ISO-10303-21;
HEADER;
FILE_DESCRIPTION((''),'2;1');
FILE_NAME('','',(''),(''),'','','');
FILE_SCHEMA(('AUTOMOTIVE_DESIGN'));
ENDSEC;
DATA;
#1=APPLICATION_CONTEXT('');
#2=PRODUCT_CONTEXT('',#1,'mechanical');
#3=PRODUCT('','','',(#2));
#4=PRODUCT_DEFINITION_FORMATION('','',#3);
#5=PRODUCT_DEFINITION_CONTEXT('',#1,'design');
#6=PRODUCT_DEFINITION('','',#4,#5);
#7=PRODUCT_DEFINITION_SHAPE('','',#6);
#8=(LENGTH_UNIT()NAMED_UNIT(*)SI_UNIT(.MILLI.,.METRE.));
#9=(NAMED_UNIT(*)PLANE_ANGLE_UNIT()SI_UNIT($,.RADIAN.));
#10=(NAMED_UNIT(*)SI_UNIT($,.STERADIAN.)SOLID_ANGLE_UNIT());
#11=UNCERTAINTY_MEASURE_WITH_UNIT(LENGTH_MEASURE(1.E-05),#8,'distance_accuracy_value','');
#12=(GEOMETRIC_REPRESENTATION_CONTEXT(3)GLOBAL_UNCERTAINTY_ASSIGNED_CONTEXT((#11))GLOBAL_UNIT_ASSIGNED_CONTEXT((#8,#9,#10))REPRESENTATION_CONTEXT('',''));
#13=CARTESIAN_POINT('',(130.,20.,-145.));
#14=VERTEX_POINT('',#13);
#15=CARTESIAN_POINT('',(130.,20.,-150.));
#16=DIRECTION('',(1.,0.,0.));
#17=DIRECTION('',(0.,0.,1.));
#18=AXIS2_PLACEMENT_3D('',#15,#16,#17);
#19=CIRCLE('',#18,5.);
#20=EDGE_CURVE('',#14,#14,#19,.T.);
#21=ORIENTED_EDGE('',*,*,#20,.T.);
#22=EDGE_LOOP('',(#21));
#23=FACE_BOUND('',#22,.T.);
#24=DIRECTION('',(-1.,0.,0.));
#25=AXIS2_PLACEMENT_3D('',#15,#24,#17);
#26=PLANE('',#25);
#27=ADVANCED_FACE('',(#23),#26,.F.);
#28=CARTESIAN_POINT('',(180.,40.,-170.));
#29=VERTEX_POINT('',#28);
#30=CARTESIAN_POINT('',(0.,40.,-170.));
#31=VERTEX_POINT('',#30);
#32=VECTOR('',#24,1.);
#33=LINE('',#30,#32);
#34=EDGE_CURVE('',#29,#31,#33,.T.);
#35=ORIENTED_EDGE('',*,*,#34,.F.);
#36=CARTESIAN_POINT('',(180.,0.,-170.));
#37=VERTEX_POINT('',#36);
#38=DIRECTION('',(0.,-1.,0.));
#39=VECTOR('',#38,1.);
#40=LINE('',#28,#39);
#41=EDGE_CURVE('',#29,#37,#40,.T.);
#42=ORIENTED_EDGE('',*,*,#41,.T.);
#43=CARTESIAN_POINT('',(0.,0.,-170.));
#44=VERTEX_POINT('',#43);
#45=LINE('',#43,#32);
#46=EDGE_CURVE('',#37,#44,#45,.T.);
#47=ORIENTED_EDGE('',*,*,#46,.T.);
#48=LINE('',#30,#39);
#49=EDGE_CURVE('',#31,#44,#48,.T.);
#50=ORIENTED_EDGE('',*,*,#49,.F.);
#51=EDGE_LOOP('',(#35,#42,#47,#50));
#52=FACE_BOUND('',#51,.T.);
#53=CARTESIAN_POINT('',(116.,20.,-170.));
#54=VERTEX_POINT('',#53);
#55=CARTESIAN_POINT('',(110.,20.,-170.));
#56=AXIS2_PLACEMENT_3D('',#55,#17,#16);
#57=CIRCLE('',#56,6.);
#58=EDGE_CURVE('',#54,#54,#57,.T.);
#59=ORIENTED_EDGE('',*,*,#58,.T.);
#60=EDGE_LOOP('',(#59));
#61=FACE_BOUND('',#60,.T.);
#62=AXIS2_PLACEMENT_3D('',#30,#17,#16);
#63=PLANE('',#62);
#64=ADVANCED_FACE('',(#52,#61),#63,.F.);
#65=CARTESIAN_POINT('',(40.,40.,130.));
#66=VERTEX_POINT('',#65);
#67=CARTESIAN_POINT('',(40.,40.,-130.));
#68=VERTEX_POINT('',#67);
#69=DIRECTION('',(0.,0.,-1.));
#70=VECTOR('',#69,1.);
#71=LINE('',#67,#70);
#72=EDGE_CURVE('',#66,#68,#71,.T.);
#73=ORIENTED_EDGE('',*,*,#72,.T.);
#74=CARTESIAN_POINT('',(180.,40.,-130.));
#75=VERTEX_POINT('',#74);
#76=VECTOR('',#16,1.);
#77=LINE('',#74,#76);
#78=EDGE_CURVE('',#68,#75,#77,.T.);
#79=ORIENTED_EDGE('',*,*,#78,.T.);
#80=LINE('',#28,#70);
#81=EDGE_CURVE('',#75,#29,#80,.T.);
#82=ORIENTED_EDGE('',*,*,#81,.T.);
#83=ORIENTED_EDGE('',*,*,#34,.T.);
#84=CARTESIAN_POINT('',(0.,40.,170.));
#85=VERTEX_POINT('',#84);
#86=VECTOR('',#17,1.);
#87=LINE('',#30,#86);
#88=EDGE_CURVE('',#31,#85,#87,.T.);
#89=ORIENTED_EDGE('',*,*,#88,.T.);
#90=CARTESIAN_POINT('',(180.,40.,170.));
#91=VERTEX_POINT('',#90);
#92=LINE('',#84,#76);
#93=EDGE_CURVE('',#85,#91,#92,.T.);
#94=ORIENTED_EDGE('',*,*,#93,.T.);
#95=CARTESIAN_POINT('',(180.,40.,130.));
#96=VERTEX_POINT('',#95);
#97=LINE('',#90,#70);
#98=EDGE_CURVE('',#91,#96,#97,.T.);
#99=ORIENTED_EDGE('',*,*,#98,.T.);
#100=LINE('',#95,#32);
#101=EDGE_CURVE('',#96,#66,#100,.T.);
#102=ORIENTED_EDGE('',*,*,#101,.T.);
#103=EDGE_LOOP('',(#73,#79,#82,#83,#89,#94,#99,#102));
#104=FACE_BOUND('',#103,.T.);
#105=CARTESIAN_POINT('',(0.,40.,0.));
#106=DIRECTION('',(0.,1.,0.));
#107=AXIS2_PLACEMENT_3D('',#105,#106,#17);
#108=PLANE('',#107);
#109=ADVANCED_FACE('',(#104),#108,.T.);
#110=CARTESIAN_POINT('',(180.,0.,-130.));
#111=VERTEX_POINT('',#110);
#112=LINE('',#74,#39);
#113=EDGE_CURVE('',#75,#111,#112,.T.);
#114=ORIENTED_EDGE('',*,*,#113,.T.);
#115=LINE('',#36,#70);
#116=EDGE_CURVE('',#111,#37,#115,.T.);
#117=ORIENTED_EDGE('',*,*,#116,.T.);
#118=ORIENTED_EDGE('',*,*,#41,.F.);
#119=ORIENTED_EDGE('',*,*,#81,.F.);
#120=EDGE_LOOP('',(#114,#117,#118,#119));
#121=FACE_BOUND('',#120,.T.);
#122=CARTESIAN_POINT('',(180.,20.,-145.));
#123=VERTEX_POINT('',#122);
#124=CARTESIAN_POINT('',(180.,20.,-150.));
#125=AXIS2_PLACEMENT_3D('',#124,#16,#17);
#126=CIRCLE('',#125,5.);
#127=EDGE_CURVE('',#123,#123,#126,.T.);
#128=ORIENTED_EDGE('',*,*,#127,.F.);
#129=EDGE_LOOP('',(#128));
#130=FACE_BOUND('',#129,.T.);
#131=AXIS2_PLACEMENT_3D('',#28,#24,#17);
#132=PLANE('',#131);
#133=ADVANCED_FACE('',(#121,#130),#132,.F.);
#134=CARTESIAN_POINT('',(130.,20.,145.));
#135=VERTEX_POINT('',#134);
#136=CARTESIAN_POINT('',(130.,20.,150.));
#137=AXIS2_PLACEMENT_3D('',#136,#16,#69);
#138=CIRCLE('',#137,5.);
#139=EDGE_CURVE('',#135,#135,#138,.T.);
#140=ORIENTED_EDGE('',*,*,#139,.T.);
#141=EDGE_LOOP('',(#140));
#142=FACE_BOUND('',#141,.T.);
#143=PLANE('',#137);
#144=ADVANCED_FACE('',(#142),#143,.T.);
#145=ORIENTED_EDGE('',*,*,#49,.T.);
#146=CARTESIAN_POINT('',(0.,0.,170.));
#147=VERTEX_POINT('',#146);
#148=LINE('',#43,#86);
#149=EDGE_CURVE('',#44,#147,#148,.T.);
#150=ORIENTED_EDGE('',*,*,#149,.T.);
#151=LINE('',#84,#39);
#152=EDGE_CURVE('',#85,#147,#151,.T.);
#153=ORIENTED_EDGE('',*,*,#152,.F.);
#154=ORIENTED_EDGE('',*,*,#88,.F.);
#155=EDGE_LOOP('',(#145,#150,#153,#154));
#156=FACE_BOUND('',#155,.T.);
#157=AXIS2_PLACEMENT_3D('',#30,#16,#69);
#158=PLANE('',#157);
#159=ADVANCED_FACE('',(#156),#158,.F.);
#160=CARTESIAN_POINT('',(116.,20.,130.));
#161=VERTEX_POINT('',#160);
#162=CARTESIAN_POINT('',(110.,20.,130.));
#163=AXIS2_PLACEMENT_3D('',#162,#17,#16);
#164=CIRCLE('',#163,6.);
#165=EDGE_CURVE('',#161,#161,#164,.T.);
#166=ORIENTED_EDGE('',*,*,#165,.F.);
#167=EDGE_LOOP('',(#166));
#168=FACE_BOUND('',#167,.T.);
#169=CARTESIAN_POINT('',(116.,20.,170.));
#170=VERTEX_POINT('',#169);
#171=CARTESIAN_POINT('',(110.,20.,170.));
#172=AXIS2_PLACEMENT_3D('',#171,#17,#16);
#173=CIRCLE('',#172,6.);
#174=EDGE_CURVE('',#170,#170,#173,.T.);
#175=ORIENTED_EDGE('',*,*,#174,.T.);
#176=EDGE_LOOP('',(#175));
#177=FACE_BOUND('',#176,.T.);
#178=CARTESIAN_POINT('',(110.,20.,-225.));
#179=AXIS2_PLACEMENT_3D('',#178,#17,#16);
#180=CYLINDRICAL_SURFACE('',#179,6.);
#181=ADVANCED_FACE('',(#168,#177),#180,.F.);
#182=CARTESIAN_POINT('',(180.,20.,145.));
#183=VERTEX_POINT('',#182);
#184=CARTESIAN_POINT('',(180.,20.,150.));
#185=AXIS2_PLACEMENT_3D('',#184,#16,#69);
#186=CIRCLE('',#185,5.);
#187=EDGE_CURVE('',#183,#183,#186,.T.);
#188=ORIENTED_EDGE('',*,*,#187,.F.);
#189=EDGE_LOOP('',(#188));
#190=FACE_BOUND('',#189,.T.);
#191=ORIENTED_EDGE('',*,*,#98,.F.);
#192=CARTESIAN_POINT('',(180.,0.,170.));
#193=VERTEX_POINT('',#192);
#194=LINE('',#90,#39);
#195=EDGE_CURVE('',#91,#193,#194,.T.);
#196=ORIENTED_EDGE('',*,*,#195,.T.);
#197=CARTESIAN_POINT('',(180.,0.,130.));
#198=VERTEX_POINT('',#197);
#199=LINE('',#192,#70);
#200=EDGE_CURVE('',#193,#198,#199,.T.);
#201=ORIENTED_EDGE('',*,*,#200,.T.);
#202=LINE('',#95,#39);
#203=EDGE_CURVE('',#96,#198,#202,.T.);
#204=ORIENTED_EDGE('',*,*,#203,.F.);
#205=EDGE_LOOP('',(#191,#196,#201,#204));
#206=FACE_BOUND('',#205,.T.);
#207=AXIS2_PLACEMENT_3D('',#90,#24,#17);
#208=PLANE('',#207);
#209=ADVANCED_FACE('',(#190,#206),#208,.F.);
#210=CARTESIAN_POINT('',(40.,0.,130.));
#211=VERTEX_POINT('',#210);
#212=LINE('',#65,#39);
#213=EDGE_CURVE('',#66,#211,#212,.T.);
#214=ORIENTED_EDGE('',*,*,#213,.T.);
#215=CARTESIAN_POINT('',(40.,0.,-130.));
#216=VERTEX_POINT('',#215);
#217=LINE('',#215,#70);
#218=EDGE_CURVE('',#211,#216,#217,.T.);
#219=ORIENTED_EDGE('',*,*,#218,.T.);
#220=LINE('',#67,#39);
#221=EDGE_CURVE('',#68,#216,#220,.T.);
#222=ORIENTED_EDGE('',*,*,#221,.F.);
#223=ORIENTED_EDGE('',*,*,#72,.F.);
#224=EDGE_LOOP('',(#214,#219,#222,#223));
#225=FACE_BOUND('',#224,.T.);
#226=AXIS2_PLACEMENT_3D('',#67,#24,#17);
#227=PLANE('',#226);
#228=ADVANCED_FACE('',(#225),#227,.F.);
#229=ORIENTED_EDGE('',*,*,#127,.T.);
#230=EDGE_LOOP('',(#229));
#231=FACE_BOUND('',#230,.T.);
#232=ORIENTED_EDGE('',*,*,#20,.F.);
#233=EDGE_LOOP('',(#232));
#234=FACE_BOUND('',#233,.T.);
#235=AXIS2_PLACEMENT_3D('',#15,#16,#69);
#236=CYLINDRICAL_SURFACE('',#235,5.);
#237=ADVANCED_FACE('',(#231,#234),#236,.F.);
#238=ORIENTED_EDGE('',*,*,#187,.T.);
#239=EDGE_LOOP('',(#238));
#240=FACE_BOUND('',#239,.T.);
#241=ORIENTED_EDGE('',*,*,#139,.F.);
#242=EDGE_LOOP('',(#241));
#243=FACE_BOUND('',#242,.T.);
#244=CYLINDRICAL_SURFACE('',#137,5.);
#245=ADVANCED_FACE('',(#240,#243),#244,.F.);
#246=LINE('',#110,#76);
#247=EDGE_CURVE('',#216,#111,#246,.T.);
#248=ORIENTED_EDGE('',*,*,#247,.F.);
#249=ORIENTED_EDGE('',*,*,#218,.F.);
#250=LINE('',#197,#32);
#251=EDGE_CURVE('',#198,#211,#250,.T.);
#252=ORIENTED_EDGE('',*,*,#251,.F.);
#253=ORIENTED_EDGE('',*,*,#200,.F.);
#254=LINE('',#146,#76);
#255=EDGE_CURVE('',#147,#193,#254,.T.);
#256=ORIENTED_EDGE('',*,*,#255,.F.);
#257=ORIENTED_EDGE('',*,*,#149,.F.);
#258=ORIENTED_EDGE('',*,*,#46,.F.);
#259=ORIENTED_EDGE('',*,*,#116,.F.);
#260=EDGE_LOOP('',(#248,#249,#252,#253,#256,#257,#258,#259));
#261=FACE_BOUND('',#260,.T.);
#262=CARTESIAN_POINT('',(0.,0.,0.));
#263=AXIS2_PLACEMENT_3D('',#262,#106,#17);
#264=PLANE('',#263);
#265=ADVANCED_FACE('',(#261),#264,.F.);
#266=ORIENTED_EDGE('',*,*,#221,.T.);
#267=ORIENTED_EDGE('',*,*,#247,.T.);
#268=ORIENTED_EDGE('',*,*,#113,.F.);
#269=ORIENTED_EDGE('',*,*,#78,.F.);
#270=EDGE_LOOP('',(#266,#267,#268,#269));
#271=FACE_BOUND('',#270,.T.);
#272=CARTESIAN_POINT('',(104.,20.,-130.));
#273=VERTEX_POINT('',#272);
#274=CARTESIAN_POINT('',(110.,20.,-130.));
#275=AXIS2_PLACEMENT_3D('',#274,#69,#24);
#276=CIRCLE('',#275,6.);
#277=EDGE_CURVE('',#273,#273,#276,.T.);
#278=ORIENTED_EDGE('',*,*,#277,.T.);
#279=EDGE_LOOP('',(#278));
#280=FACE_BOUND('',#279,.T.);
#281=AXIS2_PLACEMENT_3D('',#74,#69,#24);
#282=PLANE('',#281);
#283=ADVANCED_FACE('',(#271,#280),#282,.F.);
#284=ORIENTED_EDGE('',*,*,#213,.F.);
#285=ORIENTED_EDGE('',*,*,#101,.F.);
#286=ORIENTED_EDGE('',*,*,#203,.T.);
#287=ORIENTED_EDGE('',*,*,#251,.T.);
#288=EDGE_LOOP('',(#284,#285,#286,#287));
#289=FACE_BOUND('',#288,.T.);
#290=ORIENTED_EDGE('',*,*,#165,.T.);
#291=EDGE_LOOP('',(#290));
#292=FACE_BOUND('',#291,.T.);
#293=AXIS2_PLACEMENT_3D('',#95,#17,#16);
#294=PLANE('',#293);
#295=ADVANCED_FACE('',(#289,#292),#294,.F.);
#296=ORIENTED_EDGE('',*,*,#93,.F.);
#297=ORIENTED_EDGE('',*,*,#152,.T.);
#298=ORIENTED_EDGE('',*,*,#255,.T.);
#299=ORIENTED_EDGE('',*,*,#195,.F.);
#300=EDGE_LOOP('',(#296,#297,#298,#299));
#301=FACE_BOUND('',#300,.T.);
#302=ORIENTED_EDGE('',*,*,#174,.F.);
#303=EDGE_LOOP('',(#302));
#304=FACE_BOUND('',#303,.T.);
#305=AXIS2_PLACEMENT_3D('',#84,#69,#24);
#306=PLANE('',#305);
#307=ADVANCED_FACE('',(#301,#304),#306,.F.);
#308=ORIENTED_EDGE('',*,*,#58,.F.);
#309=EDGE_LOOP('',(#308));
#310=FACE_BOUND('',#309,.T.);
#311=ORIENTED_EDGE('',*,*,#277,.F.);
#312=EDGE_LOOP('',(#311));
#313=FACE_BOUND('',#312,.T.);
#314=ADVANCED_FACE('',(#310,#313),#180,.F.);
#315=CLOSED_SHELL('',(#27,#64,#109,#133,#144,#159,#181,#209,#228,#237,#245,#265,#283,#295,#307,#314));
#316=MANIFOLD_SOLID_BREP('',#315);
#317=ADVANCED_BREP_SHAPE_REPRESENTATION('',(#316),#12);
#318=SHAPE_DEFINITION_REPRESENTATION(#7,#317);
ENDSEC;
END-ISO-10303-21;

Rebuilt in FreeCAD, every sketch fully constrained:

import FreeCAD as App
import Part
import Sketcher
from FreeCAD import Vector
Q = App.Units.Quantity

doc = App.newDocument("Part")
params = doc.addObject("Spreadsheet::Sheet", "Params")
for row, (alias, value) in enumerate([
    ("sketch1_width", "180 mm"),
    ("sketch1_width2", "140 mm"),
    ("sketch1_height", "340 mm"),
    ("sketch1_height2", "40 mm"),
    ("pad1_length", "40 mm"),
    ("sketch2_diameter", "12 mm"),
    ("pocket1_length", "395 mm"),
    ("sketch3_diameter", "10 mm"),
    ("pocket2_length", "50 mm"),
], start=1):
    params.set(f"A{row}", alias)
    params.set(f"B{row}", "=" + value)
    params.setAlias(f"B{row}", alias)

body = doc.addObject("PartDesign::Body", "Body")

sketch1 = body.newObject("Sketcher::SketchObject", "Sketch")
sketch1.AttachmentSupport = (doc.getObject("XZ_Plane"), [""])
sketch1.MapMode = "FlatFace"
sketch1.addGeometry(Part.LineSegment(Vector(180, -170, 0), Vector(0, -170, 0)), False)
sketch1.addGeometry(Part.LineSegment(Vector(0, -170, 0), Vector(0, 170, 0)), False)
sketch1.addGeometry(Part.LineSegment(Vector(0, 170, 0), Vector(180, 170, 0)), False)
sketch1.addGeometry(Part.LineSegment(Vector(180, 170, 0), Vector(180, 130, 0)), False)
sketch1.addGeometry(Part.LineSegment(Vector(180, 130, 0), Vector(40, 130, 0)), False)
sketch1.addGeometry(Part.LineSegment(Vector(40, 130, 0), Vector(40, -130, 0)), False)
sketch1.addGeometry(Part.LineSegment(Vector(40, -130, 0), Vector(180, -130, 0)), False)
sketch1.addGeometry(Part.LineSegment(Vector(180, -130, 0), Vector(180, -170, 0)), False)
sketch1.addConstraint(Sketcher.Constraint("Coincident", 0, 2, 1, 1))
sketch1.addConstraint(Sketcher.Constraint("Coincident", 1, 2, 2, 1))
sketch1.addConstraint(Sketcher.Constraint("Coincident", 2, 2, 3, 1))
sketch1.addConstraint(Sketcher.Constraint("Coincident", 3, 2, 4, 1))
sketch1.addConstraint(Sketcher.Constraint("Coincident", 4, 2, 5, 1))
sketch1.addConstraint(Sketcher.Constraint("Coincident", 5, 2, 6, 1))
sketch1.addConstraint(Sketcher.Constraint("Coincident", 6, 2, 7, 1))
sketch1.addConstraint(Sketcher.Constraint("Coincident", 7, 2, 0, 1))
sketch1.addConstraint(Sketcher.Constraint("Horizontal", 0))
sketch1.addConstraint(Sketcher.Constraint("Vertical", 1))
sketch1.addConstraint(Sketcher.Constraint("Horizontal", 2))
sketch1.addConstraint(Sketcher.Constraint("Vertical", 3))
sketch1.addConstraint(Sketcher.Constraint("Horizontal", 4))
sketch1.addConstraint(Sketcher.Constraint("Vertical", 5))
sketch1.addConstraint(Sketcher.Constraint("Horizontal", 6))
sketch1.addConstraint(Sketcher.Constraint("Vertical", 7))
sketch1.addConstraint(Sketcher.Constraint("Symmetric", 0, 2, 1, 2, -1, 1))
sketch1.addConstraint(Sketcher.Constraint("Symmetric", 3, 2, 6, 2, -1))
sketch1.addConstraint(Sketcher.Constraint("DistanceX", 0, 2, 0, 1, Q("180 mm")))
sketch1.addConstraint(Sketcher.Constraint("DistanceX", 4, 2, 4, 1, Q("140 mm")))
sketch1.addConstraint(Sketcher.Constraint("DistanceY", 1, 1, 1, 2, Q("340 mm")))
sketch1.addConstraint(Sketcher.Constraint("DistanceY", 3, 2, 3, 1, Q("40 mm")))
sketch1.setExpression("Constraints[18]", "Params.sketch1_width")
sketch1.setExpression("Constraints[19]", "Params.sketch1_width2")
sketch1.setExpression("Constraints[20]", "Params.sketch1_height")
sketch1.setExpression("Constraints[21]", "Params.sketch1_height2")
pad1 = body.newObject("PartDesign::Pad", "Pad")
pad1.Profile = sketch1
pad1.setExpression("Length", "Params.pad1_length")
pad1.Reversed = True

sketch2 = body.newObject("Sketcher::SketchObject", "Sketch001")
sketch2.AttachmentSupport = (doc.getObject("XY_Plane"), [""])
sketch2.MapMode = "FlatFace"
sketch2.AttachmentOffset = App.Placement(Vector(0, 0, 170), App.Rotation())
sketch2.addGeometry(Part.Circle(Vector(110, 20, 0), Vector(0, 0, 1), 6), False)
sketch2.addConstraint(Sketcher.Constraint("Diameter", 0, Q("12 mm")))
sketch2.addConstraint(Sketcher.Constraint("DistanceX", -1, 1, 0, 3, Q("110 mm")))
sketch2.addConstraint(Sketcher.Constraint("DistanceY", -1, 1, 0, 3, Q("20 mm")))
sketch2.setExpression("Constraints[0]", "Params.sketch2_diameter")
pocket1 = body.newObject("PartDesign::Pocket", "Pocket")
pocket1.Profile = sketch2
pocket1.setExpression("Length", "Params.pocket1_length")

sketch3 = body.newObject("Sketcher::SketchObject", "Sketch002")
sketch3.AttachmentSupport = (doc.getObject("YZ_Plane"), [""])
sketch3.MapMode = "FlatFace"
sketch3.AttachmentOffset = App.Placement(Vector(0, 0, 180), App.Rotation())
sketch3.addGeometry(Part.Circle(Vector(20, 150, 0), Vector(0, 0, 1), 5), False)
sketch3.addGeometry(Part.Circle(Vector(20, -150, 0), Vector(0, 0, 1), 5), False)
sketch3.addConstraint(Sketcher.Constraint("Equal", 0, 1))
sketch3.addConstraint(Sketcher.Constraint("Symmetric", 0, 3, 1, 3, -1))
sketch3.addConstraint(Sketcher.Constraint("Diameter", 0, Q("10 mm")))
sketch3.addConstraint(Sketcher.Constraint("DistanceX", -1, 1, 0, 3, Q("20 mm")))
sketch3.addConstraint(Sketcher.Constraint("DistanceY", -1, 1, 0, 3, Q("150 mm")))
sketch3.setExpression("Constraints[2]", "Params.sketch3_diameter")
pocket2 = body.newObject("PartDesign::Pocket", "Pocket001")
pocket2.Profile = sketch3
pocket2.setExpression("Length", "Params.pocket2_length")

doc.recompute()
